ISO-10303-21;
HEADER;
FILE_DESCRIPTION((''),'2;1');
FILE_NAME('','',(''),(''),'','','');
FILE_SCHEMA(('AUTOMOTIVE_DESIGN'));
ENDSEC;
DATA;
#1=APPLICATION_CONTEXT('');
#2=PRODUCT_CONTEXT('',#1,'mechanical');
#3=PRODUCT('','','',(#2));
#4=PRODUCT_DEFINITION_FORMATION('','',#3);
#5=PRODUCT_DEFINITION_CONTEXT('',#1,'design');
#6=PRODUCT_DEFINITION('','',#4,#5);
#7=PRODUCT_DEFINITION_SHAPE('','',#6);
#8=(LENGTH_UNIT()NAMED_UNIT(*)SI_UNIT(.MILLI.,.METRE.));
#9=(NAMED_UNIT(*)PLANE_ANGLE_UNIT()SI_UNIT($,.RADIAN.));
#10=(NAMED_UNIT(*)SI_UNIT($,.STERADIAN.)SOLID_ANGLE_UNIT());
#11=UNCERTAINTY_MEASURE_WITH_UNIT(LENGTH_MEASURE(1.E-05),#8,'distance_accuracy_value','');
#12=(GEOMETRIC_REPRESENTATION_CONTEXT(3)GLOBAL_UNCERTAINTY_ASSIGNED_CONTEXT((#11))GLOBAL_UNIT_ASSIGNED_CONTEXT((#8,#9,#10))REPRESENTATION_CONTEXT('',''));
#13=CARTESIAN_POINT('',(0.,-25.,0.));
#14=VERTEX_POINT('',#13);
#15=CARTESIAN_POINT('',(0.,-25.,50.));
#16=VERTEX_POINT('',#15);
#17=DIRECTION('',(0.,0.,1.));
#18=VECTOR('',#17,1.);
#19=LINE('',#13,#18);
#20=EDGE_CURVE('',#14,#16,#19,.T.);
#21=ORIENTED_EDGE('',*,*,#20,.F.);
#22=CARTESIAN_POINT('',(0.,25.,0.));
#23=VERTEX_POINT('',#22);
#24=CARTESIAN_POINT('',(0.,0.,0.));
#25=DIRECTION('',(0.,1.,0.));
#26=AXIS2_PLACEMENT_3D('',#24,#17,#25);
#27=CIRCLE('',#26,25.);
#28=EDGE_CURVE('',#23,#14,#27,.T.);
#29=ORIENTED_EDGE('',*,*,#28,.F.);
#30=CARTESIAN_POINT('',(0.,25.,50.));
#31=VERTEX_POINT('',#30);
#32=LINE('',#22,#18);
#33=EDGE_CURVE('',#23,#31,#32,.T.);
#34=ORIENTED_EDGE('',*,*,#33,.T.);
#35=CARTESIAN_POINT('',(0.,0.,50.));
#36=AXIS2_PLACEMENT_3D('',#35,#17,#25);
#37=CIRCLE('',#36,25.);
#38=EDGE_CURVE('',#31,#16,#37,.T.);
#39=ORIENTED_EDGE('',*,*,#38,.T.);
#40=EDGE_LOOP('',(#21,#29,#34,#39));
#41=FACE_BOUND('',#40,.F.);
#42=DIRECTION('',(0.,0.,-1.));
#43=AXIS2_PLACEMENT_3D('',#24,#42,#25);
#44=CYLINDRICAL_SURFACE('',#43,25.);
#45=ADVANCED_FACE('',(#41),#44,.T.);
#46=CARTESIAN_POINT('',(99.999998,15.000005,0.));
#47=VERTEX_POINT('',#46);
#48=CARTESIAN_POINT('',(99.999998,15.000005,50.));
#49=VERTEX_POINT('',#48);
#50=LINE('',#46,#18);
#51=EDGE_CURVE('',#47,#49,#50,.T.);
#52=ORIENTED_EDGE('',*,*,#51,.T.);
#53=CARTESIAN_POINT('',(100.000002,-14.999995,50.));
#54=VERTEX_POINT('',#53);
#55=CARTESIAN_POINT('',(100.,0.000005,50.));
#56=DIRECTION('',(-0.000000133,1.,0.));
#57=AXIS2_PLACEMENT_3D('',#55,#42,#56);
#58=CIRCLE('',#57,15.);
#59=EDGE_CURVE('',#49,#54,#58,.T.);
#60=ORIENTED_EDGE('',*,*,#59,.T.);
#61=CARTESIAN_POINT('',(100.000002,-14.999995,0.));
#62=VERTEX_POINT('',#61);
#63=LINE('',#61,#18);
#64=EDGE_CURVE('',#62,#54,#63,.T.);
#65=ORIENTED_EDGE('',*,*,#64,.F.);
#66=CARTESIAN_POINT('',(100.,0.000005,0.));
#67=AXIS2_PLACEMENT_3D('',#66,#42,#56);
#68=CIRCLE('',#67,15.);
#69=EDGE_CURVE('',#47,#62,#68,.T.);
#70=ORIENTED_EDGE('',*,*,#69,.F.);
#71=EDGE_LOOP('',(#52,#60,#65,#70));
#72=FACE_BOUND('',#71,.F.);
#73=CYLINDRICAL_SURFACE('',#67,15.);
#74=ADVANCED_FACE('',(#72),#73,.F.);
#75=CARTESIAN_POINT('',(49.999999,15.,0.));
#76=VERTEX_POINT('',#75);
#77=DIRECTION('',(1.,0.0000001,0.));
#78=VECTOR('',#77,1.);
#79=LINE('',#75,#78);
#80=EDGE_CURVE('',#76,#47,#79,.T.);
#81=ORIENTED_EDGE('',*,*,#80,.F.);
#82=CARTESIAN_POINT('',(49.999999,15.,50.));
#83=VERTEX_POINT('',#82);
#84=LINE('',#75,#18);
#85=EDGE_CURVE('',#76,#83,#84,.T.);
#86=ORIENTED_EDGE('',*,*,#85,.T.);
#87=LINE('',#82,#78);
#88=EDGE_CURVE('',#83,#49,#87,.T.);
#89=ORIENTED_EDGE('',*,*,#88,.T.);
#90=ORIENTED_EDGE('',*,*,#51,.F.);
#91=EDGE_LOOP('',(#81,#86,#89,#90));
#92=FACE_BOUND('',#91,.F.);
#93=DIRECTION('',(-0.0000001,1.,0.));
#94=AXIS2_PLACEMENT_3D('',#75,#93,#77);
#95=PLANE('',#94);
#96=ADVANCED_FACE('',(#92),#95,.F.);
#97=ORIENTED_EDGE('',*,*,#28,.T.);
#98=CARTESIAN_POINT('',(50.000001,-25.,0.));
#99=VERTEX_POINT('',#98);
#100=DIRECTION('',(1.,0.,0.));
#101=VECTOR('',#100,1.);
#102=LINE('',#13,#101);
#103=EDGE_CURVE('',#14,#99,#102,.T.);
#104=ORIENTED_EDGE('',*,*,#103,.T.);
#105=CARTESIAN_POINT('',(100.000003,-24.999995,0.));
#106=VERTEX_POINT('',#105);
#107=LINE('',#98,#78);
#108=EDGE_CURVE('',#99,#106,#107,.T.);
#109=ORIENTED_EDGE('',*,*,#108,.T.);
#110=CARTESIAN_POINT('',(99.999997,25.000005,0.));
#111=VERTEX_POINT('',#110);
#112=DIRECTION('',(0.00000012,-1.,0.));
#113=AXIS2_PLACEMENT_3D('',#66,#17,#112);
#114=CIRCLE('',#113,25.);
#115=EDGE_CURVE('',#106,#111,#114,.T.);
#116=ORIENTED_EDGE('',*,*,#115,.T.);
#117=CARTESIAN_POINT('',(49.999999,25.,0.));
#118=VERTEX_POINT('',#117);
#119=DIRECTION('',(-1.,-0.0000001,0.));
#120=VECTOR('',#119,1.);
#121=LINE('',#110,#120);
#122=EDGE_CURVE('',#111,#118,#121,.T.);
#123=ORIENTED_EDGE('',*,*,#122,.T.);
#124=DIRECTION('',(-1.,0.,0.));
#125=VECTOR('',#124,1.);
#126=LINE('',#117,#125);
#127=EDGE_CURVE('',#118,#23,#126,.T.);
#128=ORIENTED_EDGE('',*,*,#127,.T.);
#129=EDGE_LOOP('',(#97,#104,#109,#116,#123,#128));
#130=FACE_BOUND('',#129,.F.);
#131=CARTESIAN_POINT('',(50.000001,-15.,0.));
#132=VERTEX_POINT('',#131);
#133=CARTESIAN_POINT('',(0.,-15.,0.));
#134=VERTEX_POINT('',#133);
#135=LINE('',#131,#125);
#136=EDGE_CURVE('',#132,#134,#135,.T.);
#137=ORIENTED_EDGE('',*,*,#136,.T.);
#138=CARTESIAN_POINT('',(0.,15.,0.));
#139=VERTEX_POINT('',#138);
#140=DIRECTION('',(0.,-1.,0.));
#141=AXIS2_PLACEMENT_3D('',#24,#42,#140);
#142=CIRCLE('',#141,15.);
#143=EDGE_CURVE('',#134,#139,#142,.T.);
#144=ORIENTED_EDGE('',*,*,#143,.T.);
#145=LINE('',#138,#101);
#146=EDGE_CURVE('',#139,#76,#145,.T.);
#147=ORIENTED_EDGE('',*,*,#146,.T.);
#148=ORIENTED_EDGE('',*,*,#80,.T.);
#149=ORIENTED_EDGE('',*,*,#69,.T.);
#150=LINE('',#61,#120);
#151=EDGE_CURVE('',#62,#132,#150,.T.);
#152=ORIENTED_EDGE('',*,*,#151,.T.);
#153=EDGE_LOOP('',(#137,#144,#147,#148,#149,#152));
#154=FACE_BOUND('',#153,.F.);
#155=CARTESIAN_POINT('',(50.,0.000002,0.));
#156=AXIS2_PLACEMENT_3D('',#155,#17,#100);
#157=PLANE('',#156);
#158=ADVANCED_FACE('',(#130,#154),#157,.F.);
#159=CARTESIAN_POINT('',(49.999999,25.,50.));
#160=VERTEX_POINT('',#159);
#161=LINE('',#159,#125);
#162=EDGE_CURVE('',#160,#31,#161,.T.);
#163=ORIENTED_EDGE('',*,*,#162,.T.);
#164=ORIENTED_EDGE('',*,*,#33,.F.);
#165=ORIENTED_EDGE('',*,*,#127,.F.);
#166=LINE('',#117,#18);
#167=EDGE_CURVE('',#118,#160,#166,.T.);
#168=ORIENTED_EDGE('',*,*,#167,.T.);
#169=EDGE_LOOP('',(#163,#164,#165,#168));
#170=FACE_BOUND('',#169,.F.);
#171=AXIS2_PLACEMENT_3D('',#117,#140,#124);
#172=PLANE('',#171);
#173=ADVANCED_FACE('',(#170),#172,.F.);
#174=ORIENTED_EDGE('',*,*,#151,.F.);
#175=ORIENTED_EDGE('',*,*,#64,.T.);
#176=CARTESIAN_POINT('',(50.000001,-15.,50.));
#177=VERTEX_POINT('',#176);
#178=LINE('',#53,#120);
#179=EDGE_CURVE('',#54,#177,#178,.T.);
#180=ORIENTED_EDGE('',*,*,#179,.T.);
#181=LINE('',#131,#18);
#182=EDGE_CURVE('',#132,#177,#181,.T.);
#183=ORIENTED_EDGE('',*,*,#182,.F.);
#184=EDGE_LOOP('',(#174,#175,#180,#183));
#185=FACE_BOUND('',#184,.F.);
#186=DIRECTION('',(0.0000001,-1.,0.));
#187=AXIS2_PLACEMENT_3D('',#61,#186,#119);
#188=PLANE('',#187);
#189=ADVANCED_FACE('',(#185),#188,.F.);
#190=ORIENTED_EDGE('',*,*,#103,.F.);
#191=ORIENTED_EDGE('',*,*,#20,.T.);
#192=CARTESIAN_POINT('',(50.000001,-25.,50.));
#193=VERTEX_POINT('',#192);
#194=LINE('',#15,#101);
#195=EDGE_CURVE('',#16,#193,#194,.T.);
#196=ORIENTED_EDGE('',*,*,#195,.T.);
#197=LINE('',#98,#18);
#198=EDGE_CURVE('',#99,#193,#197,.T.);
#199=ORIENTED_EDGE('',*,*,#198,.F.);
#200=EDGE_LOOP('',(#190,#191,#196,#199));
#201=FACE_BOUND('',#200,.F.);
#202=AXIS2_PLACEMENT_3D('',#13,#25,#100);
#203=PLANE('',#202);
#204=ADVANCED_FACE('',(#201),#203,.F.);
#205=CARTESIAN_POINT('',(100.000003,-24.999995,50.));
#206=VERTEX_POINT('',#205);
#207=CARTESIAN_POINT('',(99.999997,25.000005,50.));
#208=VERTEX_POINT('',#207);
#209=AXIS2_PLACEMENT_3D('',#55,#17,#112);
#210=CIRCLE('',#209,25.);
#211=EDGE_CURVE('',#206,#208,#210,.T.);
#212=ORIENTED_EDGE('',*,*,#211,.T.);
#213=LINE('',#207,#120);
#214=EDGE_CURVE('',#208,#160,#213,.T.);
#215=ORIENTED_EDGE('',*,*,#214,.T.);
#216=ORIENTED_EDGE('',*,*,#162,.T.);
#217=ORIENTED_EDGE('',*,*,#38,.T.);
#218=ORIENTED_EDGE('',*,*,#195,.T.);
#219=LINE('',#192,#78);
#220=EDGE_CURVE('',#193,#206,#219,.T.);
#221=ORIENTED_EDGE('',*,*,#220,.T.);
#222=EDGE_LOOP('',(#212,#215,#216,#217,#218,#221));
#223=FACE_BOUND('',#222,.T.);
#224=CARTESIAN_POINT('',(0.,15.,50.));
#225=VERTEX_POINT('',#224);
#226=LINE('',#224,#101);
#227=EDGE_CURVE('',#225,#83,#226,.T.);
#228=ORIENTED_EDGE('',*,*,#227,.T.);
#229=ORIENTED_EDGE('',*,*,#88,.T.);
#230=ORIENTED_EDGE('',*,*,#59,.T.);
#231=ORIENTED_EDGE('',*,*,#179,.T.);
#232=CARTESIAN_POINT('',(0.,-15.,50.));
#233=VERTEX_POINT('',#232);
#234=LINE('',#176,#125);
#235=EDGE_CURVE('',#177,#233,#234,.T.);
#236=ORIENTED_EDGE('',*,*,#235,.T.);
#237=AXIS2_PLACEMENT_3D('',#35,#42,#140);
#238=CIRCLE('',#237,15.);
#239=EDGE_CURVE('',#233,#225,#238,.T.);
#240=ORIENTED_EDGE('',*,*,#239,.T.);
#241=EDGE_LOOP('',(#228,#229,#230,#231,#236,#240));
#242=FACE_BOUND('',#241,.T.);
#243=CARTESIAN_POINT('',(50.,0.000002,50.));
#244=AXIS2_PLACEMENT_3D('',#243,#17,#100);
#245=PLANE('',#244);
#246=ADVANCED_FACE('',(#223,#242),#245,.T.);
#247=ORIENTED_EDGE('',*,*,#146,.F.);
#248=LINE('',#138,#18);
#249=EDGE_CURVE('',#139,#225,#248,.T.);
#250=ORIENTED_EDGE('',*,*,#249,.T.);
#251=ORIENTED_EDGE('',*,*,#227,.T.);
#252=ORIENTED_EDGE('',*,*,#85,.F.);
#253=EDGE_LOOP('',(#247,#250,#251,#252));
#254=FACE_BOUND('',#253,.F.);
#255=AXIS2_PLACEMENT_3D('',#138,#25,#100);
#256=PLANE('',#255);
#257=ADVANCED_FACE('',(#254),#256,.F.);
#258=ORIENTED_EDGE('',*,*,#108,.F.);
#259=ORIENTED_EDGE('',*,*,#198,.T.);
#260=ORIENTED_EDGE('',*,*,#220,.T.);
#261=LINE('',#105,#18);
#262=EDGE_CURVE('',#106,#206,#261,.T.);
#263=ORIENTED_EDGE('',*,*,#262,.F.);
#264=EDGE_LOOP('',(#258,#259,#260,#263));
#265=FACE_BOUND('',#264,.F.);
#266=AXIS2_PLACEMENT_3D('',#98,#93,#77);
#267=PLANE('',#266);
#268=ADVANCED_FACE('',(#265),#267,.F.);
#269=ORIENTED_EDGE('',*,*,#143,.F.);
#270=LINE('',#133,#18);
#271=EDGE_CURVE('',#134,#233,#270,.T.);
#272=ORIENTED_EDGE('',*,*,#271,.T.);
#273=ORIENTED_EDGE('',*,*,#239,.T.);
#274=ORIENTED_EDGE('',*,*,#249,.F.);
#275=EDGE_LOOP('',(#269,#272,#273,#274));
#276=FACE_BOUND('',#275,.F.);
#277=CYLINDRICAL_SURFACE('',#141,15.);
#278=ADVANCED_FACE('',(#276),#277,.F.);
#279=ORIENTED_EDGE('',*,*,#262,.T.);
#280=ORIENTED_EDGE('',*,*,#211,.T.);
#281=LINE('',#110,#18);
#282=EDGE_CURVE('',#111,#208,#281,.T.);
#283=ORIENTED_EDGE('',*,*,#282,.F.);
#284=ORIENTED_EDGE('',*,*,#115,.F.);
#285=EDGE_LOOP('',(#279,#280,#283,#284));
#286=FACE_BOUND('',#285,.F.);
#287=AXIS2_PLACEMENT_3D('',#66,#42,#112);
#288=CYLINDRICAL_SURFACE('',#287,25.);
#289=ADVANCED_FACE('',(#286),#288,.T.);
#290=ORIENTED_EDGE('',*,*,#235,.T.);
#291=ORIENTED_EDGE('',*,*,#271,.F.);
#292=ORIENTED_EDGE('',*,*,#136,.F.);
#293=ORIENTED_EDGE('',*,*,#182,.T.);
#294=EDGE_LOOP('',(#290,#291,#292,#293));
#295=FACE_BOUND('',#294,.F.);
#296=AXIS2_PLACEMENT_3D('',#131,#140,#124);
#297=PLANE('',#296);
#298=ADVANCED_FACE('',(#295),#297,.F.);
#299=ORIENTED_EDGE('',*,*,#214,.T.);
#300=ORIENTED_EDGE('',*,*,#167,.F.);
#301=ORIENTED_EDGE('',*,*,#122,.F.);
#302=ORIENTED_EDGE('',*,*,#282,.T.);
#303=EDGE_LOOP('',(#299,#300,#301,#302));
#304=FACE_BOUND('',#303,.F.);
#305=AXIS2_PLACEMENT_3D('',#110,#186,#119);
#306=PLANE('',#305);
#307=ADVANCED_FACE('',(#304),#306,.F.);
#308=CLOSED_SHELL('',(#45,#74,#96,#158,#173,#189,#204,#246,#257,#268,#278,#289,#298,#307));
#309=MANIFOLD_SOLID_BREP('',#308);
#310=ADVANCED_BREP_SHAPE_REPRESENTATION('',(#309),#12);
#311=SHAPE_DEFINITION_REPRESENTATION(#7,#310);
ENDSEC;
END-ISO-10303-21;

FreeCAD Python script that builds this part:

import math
import FreeCAD as App
import Part
import Sketcher

doc = App.newDocument("Part")
body = doc.addObject("PartDesign::Body", "Body")

sketch1 = body.newObject("Sketcher::SketchObject", "Sketch")
sketch1.AttachmentSupport = (doc.getObject("XY_Plane"), [""])
sketch1.MapMode = "FlatFace"
sketch1.addGeometry(Part.LineSegment(App.Vector(50, 25, 0), App.Vector(0, 25, 0)), False)
sketch1.addGeometry(Part.ArcOfCircle(Part.Circle(App.Vector(0, 0, 0), App.Vector(0, 0, 1), 25), math.radians(90), math.radians(270)), False)
sketch1.addGeometry(Part.LineSegment(App.Vector(0, -25, 0), App.Vector(50, -25, 0)), False)
sketch1.addGeometry(Part.LineSegment(App.Vector(50, -25, 0), App.Vector(100, -25, 0)), False)
sketch1.addGeometry(Part.ArcOfCircle(Part.Circle(App.Vector(100, 0, 0), App.Vector(0, 0, 1), 25), math.radians(-90), math.radians(90)), False)
sketch1.addGeometry(Part.LineSegment(App.Vector(100, 25, 0), App.Vector(50, 25, 0)), False)
sketch1.addGeometry(Part.LineSegment(App.Vector(50, -15, 0), App.Vector(0, -15, 0)), False)
sketch1.addGeometry(Part.ArcOfCircle(Part.Circle(App.Vector(0, 0, 0), App.Vector(0, 0, 1), 15), math.radians(90), math.radians(270)), False)
sketch1.addGeometry(Part.LineSegment(App.Vector(0, 15, 0), App.Vector(50, 15, 0)), False)
sketch1.addGeometry(Part.LineSegment(App.Vector(50, 15, 0), App.Vector(100, 15, 0)), False)
sketch1.addGeometry(Part.ArcOfCircle(Part.Circle(App.Vector(100, 0, 0), App.Vector(0, 0, 1), 15), math.radians(-90), math.radians(90)), False)
sketch1.addGeometry(Part.LineSegment(App.Vector(100, -15, 0), App.Vector(50, -15, 0)), False)
sketch1.addConstraint(Sketcher.Constraint("Tangent", 0, 2, 1, 1))
sketch1.addConstraint(Sketcher.Constraint("Tangent", 1, 2, 2, 1))
sketch1.addConstraint(Sketcher.Constraint("Coincident", 2, 2, 3, 1))
sketch1.addConstraint(Sketcher.Constraint("Tangent", 3, 2, 4, 1))
sketch1.addConstraint(Sketcher.Constraint("Tangent", 4, 2, 5, 1))
sketch1.addConstraint(Sketcher.Constraint("Coincident", 5, 2, 0, 1))
sketch1.addConstraint(Sketcher.Constraint("Tangent", 6, 2, 7, 2))
sketch1.addConstraint(Sketcher.Constraint("Tangent", 7, 1, 8, 1))
sketch1.addConstraint(Sketcher.Constraint("Coincident", 8, 2, 9, 1))
sketch1.addConstraint(Sketcher.Constraint("Tangent", 9, 2, 10, 2))
sketch1.addConstraint(Sketcher.Constraint("Tangent", 10, 1, 11, 1))
sketch1.addConstraint(Sketcher.Constraint("Coincident", 11, 2, 6, 1))
sketch1.addConstraint(Sketcher.Constraint("Horizontal", 0))
sketch1.addConstraint(Sketcher.Constraint("Horizontal", 2))
sketch1.addConstraint(Sketcher.Constraint("Horizontal", 6))
sketch1.addConstraint(Sketcher.Constraint("Horizontal", 8))
sketch1.addConstraint(Sketcher.Constraint("Coincident", 1, 3, -1, 1))
sketch1.addConstraint(Sketcher.Constraint("Coincident", 7, 3, -1, 1))
sketch1.addConstraint(Sketcher.Constraint("Coincident", 10, 3, 4, 3))
sketch1.addConstraint(Sketcher.Constraint("Equal", 1, 4))
sketch1.addConstraint(Sketcher.Constraint("Equal", 7, 10))
sketch1.addConstraint(Sketcher.Constraint("Vertical", 2, 2, 5, 2))
sketch1.addConstraint(Sketcher.Constraint("Vertical", 5, 2, 8, 2))
sketch1.addConstraint(Sketcher.Constraint("Vertical", 4, 2, 9, 2))
sketch1.addConstraint(Sketcher.Constraint("Vertical", 8, 2, 11, 2))
sketch1.addConstraint(Sketcher.Constraint("Radius", 1, 25.0))
sketch1.addConstraint(Sketcher.Constraint("Radius", 7, 15.0))
sketch1.addConstraint(Sketcher.Constraint("DistanceX", 0, 2, 0, 1, 49.999999))
sketch1.addConstraint(Sketcher.Constraint("Distance", 5, 49.999998))
pad1 = body.newObject("PartDesign::Pad", "Pad")
pad1.Profile = sketch1
pad1.Length = 50

doc.recompute()
